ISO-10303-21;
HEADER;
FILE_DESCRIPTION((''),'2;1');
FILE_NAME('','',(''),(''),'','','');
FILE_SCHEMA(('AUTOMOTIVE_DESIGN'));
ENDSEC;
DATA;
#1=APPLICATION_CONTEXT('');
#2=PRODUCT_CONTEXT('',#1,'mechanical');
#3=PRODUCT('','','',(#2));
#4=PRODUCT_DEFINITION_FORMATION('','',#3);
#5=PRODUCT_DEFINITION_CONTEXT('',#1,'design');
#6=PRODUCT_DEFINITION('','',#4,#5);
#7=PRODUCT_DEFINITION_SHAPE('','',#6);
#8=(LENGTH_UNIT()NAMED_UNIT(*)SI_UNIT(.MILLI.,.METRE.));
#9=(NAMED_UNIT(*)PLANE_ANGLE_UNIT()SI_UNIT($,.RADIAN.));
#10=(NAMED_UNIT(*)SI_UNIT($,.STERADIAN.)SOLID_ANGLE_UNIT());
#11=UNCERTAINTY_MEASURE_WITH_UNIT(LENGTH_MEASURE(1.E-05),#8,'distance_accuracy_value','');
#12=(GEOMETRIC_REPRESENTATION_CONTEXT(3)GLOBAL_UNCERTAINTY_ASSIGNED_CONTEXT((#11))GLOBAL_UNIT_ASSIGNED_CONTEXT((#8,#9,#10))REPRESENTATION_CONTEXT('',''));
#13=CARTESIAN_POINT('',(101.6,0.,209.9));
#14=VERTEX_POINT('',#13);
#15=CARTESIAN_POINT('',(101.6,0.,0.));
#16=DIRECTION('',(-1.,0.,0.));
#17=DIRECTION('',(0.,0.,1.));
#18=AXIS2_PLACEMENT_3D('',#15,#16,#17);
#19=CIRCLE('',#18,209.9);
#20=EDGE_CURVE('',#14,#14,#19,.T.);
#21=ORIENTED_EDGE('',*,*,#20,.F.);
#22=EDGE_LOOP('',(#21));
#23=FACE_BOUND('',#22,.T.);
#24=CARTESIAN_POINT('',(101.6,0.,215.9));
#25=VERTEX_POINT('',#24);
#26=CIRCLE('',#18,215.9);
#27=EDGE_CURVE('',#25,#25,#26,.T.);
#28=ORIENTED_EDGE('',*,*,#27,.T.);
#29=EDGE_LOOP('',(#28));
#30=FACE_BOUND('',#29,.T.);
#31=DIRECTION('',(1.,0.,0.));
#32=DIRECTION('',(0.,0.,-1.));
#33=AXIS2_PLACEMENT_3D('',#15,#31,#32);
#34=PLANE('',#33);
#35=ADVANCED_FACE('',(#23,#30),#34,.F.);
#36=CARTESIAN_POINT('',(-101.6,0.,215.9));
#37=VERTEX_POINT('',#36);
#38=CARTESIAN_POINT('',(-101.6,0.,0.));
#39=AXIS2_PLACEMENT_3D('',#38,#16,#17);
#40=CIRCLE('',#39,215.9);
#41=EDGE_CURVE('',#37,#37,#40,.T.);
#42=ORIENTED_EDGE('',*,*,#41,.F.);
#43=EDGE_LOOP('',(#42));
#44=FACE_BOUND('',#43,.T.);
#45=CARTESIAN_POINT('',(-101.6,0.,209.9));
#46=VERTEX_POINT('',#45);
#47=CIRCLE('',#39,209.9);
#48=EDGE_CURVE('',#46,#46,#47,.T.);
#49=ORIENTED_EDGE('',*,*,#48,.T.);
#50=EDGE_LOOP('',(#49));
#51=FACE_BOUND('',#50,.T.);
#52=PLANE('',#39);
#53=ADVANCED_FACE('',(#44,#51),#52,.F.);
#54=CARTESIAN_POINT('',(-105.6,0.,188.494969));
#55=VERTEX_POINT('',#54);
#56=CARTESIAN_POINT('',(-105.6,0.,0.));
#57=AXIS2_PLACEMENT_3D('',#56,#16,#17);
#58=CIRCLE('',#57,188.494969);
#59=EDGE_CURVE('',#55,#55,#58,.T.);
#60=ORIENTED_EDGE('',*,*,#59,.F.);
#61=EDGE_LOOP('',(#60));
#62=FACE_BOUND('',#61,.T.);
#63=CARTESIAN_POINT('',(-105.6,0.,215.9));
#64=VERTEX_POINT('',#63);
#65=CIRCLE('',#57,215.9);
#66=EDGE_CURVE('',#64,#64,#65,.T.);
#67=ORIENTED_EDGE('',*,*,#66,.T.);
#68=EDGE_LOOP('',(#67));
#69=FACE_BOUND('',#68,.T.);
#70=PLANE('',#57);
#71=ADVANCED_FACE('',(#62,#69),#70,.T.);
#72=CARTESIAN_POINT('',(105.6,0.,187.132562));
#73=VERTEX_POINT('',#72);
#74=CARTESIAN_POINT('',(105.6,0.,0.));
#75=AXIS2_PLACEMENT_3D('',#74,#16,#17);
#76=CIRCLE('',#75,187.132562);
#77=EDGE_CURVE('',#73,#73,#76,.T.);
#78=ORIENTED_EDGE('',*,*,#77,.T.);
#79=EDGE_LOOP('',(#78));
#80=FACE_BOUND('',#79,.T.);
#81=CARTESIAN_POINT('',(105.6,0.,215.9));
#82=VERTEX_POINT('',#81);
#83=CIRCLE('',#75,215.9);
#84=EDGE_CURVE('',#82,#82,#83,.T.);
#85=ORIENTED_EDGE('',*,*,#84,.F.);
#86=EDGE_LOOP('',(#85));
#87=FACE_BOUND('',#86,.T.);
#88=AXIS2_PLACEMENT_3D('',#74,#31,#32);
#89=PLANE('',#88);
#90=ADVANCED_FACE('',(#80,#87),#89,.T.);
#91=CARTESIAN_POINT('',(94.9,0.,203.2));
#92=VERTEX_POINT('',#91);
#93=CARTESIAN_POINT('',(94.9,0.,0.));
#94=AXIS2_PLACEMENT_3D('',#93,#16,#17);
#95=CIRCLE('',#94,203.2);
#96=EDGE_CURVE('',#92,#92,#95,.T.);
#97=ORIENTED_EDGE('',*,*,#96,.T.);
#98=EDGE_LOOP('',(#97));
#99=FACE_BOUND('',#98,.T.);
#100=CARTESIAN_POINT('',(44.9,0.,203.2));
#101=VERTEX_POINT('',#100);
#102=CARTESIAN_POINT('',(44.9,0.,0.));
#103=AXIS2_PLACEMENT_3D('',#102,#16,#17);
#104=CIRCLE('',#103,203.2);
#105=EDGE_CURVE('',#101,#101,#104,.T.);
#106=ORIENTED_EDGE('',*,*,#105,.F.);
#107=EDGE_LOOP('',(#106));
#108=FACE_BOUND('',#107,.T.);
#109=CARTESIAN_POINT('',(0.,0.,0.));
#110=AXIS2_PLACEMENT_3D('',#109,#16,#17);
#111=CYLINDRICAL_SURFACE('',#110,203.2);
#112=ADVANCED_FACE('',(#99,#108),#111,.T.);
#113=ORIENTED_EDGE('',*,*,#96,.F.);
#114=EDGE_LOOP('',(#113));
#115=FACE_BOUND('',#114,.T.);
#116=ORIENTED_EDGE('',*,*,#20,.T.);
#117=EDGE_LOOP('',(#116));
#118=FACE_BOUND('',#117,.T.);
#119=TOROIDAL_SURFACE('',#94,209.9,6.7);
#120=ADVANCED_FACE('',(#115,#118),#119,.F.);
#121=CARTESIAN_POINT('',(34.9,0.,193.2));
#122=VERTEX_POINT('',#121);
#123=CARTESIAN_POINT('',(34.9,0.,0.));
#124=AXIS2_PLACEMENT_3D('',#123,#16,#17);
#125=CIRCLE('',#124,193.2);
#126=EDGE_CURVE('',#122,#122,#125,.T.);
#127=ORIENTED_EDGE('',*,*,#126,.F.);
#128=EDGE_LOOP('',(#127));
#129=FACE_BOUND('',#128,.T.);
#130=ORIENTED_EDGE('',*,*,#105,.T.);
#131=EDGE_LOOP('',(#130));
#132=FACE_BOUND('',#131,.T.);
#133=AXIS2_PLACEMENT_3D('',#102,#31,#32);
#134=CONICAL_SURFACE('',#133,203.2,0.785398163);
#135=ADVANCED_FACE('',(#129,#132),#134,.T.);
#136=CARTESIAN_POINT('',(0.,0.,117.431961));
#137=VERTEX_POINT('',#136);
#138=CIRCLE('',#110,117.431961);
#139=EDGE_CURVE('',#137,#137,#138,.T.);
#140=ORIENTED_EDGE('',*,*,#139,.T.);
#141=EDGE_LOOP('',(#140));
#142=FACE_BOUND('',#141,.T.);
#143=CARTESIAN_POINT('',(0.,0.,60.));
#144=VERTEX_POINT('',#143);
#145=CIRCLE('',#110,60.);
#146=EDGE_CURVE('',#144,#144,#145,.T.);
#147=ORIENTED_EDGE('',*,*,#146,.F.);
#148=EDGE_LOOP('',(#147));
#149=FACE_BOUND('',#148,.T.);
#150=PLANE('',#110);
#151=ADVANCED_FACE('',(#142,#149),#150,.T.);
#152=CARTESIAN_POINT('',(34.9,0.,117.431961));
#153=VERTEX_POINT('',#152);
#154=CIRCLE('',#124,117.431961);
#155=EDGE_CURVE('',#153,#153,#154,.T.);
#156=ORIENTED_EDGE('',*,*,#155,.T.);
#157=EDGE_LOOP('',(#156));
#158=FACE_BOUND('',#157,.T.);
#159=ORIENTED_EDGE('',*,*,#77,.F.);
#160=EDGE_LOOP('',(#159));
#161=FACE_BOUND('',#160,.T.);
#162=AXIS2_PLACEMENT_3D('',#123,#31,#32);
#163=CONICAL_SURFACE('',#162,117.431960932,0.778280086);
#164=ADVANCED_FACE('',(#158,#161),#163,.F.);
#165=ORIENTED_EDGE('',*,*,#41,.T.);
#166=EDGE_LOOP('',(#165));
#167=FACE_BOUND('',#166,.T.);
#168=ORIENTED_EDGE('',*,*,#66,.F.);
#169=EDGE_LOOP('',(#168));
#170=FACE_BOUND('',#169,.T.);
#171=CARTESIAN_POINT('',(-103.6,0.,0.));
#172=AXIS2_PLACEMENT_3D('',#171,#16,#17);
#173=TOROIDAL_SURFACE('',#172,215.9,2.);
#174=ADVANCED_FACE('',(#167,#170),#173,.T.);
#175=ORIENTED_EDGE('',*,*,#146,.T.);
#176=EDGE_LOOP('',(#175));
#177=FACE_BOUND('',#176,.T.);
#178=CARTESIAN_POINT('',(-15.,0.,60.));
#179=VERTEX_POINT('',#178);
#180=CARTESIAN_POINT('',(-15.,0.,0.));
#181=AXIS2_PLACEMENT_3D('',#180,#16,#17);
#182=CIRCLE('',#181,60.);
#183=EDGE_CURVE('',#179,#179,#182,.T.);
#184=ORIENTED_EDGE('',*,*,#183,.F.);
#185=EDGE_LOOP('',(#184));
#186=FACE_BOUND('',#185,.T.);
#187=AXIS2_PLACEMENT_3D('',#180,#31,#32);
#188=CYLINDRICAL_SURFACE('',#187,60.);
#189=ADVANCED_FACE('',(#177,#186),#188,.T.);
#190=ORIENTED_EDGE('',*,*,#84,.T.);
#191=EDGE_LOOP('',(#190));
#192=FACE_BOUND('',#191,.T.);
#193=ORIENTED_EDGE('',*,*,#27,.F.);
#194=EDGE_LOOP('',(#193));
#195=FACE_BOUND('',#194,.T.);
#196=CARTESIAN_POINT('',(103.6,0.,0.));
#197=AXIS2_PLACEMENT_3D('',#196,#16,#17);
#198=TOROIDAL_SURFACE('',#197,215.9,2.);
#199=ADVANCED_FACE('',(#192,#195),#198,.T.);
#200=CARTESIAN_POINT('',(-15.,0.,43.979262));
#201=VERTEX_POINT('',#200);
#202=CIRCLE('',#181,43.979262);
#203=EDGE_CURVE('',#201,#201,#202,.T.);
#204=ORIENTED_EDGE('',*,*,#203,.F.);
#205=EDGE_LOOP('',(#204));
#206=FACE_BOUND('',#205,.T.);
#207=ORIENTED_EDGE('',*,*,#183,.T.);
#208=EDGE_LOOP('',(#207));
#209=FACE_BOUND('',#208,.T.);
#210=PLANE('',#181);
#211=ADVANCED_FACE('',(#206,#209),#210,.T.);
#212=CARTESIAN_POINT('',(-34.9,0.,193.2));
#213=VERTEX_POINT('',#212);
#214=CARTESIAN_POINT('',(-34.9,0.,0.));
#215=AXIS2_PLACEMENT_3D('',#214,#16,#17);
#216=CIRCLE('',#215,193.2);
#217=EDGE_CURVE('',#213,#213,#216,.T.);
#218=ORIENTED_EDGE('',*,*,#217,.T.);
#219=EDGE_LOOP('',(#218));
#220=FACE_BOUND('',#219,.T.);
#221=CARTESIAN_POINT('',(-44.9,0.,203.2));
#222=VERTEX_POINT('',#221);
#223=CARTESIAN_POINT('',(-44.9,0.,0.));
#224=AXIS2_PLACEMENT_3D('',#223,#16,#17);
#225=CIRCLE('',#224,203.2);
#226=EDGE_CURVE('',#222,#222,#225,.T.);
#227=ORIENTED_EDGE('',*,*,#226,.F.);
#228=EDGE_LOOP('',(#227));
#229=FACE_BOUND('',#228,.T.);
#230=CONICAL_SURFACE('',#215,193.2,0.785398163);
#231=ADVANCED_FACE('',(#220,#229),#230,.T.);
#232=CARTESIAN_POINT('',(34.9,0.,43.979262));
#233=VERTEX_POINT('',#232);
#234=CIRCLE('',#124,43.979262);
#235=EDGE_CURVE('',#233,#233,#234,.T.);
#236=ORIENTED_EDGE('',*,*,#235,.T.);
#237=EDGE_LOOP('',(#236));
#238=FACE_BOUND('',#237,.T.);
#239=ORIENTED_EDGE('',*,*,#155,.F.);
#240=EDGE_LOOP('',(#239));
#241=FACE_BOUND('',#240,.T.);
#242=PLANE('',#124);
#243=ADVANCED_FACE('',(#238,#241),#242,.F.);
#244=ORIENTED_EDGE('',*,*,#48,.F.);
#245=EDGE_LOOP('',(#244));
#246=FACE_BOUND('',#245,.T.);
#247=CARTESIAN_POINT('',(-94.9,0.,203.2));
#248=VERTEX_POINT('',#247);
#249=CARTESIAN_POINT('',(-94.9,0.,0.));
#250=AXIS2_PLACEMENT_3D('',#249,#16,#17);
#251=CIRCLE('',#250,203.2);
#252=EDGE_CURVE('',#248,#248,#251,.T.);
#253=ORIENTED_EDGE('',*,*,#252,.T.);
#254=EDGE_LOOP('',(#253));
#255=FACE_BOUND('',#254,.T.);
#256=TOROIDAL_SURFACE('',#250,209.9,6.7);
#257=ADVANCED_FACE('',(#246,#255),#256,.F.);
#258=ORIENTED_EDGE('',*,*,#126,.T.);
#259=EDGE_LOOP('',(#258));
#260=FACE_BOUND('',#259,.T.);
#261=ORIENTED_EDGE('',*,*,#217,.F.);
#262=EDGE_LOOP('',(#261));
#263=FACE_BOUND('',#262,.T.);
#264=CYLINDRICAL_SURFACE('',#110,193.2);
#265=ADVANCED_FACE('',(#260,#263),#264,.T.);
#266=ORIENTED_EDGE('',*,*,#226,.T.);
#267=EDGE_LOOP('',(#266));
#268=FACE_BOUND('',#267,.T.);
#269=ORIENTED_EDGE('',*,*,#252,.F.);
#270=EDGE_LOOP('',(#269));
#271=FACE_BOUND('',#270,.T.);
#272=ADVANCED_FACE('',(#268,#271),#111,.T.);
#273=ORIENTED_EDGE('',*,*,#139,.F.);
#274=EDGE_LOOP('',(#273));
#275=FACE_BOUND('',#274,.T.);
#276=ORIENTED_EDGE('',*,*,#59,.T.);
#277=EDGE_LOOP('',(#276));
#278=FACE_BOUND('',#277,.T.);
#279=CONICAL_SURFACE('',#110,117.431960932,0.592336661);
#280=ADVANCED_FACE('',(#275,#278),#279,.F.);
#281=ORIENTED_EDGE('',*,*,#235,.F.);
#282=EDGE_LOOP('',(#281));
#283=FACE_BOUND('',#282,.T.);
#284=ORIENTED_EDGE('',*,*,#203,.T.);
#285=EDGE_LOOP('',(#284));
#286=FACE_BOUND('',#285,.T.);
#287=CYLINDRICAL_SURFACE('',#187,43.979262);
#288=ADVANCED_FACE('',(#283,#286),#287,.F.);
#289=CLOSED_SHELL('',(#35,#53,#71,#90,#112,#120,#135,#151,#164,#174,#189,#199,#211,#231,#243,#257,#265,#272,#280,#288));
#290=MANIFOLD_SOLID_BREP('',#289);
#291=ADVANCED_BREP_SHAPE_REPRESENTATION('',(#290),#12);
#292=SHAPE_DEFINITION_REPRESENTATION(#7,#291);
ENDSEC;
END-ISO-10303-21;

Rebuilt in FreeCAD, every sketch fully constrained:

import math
import FreeCAD as App
import Part
import Sketcher
Q = App.Units.Quantity

doc = App.newDocument("Part")
body = doc.addObject("PartDesign::Body", "Body")

sketch1 = doc.addObject("Sketcher::SketchObject", "Sketch")
body.addObject(sketch1)
sketch1.AttachmentSupport = (doc.XY_Plane, [""])
sketch1.MapMode = "FlatFace"
sketch1.addGeometry([
    Part.LineSegment(App.Vector(0, 0, 0), App.Vector(34.9, 0, 0)),
    Part.LineSegment(App.Vector(34.9, 0, 0), App.Vector(34.9, 117.4, 0)),
    Part.LineSegment(App.Vector(34.9, 117.4, 0), App.Vector(105.6, 187.1, 0)),
    Part.LineSegment(App.Vector(105.6, 187.1, 0), App.Vector(105.6, 215.9, 0)),
    Part.ArcOfCircle(Part.Circle(App.Vector(103.6, 215.9, 0), App.Vector(0, 0, 1), 2), math.radians(0), math.radians(180)),
    Part.LineSegment(App.Vector(101.6, 215.9, 0), App.Vector(101.6, 209.9, 0)),
    Part.ArcOfCircle(Part.Circle(App.Vector(94.9, 209.9, 0), App.Vector(0, 0, 1), 6.7), math.radians(-90), math.radians(0)),
    Part.LineSegment(App.Vector(94.9, 203.2, 0), App.Vector(44.9, 203.2, 0)),
    Part.LineSegment(App.Vector(44.9, 203.2, 0), App.Vector(34.9, 193.2, 0)),
    Part.LineSegment(App.Vector(34.9, 193.2, 0), App.Vector(-34.9, 193.2, 0)),
    Part.LineSegment(App.Vector(-34.9, 193.2, 0), App.Vector(-44.9, 203.2, 0)),
    Part.LineSegment(App.Vector(-44.9, 203.2, 0), App.Vector(-94.9, 203.2, 0)),
    Part.ArcOfCircle(Part.Circle(App.Vector(-94.9, 209.9, 0), App.Vector(0, 0, 1), 6.7), math.radians(180), math.radians(270)),
    Part.LineSegment(App.Vector(-101.6, 209.9, 0), App.Vector(-101.6, 215.9, 0)),
    Part.ArcOfCircle(Part.Circle(App.Vector(-103.6, 215.9, 0), App.Vector(0, 0, 1), 2), math.radians(0), math.radians(180)),
    Part.LineSegment(App.Vector(-105.6, 215.9, 0), App.Vector(-105.6, 188.5, 0)),
    Part.LineSegment(App.Vector(-105.6, 188.5, 0), App.Vector(0, 117.4, 0)),
    Part.LineSegment(App.Vector(0, 117.4, 0), App.Vector(0, 0, 0)),
], False)
sketch1.addConstraint([
    Sketcher.Constraint("Coincident", 0, 2, 1, 1),
    Sketcher.Constraint("Coincident", 1, 2, 2, 1),
    Sketcher.Constraint("Coincident", 2, 2, 3, 1),
    Sketcher.Constraint("Tangent", 3, 2, 4, 1),
    Sketcher.Constraint("Tangent", 4, 2, 5, 1),
    Sketcher.Constraint("Tangent", 5, 2, 6, 2),
    Sketcher.Constraint("Tangent", 6, 1, 7, 1),
    Sketcher.Constraint("Coincident", 7, 2, 8, 1),
    Sketcher.Constraint("Coincident", 8, 2, 9, 1),
    Sketcher.Constraint("Coincident", 9, 2, 10, 1),
    Sketcher.Constraint("Coincident", 10, 2, 11, 1),
    Sketcher.Constraint("Tangent", 11, 2, 12, 2),
    Sketcher.Constraint("Tangent", 12, 1, 13, 1),
    Sketcher.Constraint("Tangent", 13, 2, 14, 1),
    Sketcher.Constraint("Tangent", 14, 2, 15, 1),
    Sketcher.Constraint("Coincident", 15, 2, 16, 1),
    Sketcher.Constraint("Coincident", 16, 2, 17, 1),
    Sketcher.Constraint("Coincident", 17, 2, 0, 1),
    Sketcher.Constraint("Horizontal", 0),
    Sketcher.Constraint("Vertical", 1),
    Sketcher.Constraint("Vertical", 3),
    Sketcher.Constraint("Vertical", 5),
    Sketcher.Constraint("Horizontal", 7),
    Sketcher.Constraint("Horizontal", 9),
    Sketcher.Constraint("Horizontal", 11),
    Sketcher.Constraint("Vertical", 13),
    Sketcher.Constraint("Vertical", 15),
    Sketcher.Constraint("Vertical", 17),
    Sketcher.Constraint("Coincident", 17, 2, -1, 1),
    Sketcher.Constraint("Equal", 6, 12),
    Sketcher.Constraint("Equal", 4, 14),
    Sketcher.Constraint("Symmetric", 6, 3, 12, 3, -2),
    Sketcher.Constraint("Perpendicular", 8, 10),
    Sketcher.Constraint("Horizontal", 4, 3, 14, 3),
    Sketcher.Constraint("Horizontal", 1, 2, 16, 2),
    Sketcher.Constraint("Vertical", 1, 2, 8, 2),
    Sketcher.Constraint("Equal", 7, 11),
    Sketcher.Constraint("Equal", 8, 10),
    Sketcher.Constraint("Radius", 4, Q("2 mm")),
    Sketcher.Constraint("Radius", 6, Q("6.7 mm")),
    Sketcher.Constraint("DistanceX", 7, 2, 7, 1, Q("50 mm")),
    Sketcher.Constraint("DistanceY", 5, 2, 5, 1, Q("6 mm")),
    Sketcher.Constraint("DistanceX", 0, 1, 0, 2, Q("34.9 mm")),
    Sketcher.Constraint("DistanceX", 0, 2, 6, 3, Q("60 mm")),
    Sketcher.Constraint("DistanceY", -1, 1, 4, 3, Q("215.9 mm")),
    Sketcher.Constraint("DistanceY", 1, 1, 1, 2, Q("117.431961 mm")),
    Sketcher.Constraint("DistanceY", 3, 1, 3, 2, Q("28.767438 mm")),
    Sketcher.Constraint("DistanceY", 15, 2, 15, 1, Q("27.405031 mm")),
])
revolution = doc.addObject("PartDesign::Revolution", "Revolution")
body.addObject(revolution)
revolution.Profile = sketch1
revolution.ReferenceAxis = (sketch1, ["H_Axis"])
revolution.Angle = 360

sketch2 = doc.addObject("Sketcher::SketchObject", "Sketch001")
body.addObject(sketch2)
sketch2.AttachmentSupport = (doc.YZ_Plane, [""])
sketch2.MapMode = "FlatFace"
sketch2.addGeometry([
    Part.Circle(App.Vector(0, 0, 0), App.Vector(0, 0, 1), 60),
    Part.Circle(App.Vector(0, 0, 0), App.Vector(0, 0, 1), 44),
], False)
sketch2.addConstraint([
    Sketcher.Constraint("Coincident", 0, 3, -1, 1),
    Sketcher.Constraint("Coincident", 1, 3, -1, 1),
    Sketcher.Constraint("Diameter", 0, Q("120 mm")),
    Sketcher.Constraint("Diameter", 1, Q("87.958523 mm")),
])
pad1 = doc.addObject("PartDesign::Pad", "Pad")
body.addObject(pad1)
pad1.Profile = sketch2
pad1.Length = 15
pad1.Reversed = True

sketch3 = doc.addObject("Sketcher::SketchObject", "Sketch002")
body.addObject(sketch3)
sketch3.AttachmentSupport = (doc.YZ_Plane, [""])
sketch3.MapMode = "FlatFace"
sketch3.addGeometry(Part.Circle(App.Vector(0, 0, 0), App.Vector(0, 0, 1), 44), False)
sketch3.addConstraint([
    Sketcher.Constraint("Coincident", 0, 3, -1, 1),
    Sketcher.Constraint("Diameter", 0, Q("87.958523 mm")),
])
pocket1 = doc.addObject("PartDesign::Pocket", "Pocket")
body.addObject(pocket1)
pocket1.Profile = sketch3
pocket1.Type = "ThroughAll"
pocket1.Reversed = True

doc.recompute()
